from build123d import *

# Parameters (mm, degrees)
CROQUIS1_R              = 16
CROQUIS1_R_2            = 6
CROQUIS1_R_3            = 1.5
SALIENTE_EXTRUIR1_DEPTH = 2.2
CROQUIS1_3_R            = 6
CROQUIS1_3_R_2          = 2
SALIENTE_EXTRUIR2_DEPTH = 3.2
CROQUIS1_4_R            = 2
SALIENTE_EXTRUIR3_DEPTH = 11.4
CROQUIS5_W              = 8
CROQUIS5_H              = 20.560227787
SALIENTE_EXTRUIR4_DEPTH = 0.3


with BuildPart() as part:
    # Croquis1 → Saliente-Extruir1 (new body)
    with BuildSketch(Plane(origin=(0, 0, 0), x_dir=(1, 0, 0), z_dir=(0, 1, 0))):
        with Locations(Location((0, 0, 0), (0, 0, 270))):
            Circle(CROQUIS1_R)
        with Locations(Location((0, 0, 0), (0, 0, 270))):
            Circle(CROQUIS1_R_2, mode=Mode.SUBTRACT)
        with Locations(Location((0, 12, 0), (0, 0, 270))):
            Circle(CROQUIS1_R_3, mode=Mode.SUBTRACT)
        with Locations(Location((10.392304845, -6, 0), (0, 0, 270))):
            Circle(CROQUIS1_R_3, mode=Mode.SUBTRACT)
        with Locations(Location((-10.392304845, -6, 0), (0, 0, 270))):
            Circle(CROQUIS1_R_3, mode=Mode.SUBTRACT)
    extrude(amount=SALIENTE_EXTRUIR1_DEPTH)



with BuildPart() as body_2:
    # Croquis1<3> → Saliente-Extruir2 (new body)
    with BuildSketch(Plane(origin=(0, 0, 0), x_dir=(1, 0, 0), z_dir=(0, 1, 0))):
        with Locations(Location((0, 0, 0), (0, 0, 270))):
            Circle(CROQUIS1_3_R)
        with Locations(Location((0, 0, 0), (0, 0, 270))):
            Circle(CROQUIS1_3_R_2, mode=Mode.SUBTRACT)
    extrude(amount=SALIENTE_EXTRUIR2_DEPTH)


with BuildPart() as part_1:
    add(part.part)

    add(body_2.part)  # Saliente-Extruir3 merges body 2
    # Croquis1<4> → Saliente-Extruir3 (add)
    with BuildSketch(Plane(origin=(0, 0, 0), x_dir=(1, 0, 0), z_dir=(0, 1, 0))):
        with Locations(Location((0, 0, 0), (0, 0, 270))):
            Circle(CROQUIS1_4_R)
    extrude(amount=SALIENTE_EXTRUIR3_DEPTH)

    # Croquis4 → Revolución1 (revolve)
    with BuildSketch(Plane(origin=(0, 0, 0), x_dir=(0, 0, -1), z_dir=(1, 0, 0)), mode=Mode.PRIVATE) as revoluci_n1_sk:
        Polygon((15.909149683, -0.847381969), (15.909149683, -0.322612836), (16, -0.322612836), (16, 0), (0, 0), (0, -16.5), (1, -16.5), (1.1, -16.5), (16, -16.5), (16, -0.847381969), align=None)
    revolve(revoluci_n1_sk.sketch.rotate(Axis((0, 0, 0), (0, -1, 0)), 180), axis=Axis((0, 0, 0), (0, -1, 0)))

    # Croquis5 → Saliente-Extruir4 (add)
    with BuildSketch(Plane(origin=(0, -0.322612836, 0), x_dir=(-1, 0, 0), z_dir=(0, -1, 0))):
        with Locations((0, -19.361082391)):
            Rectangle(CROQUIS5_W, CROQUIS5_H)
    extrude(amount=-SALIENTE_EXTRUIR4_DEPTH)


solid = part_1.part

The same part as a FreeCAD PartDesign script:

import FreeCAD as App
import Part
import Sketcher
from FreeCAD import Vector


def add_polygon(sketch, points):
    """Adds a closed chain of lines whose ends are joined by coincident constraints."""
    first, n = sketch.GeometryCount, len(points)
    for a, b in zip(points, points[1:] + points[:1]):
        sketch.addGeometry(Part.LineSegment(App.Vector(*a, 0), App.Vector(*b, 0)), False)
    for i in range(n):
        sketch.addConstraint(Sketcher.Constraint("Coincident", first + i, 2, first + (i + 1) % n, 1))

doc = App.newDocument("Part")
body = doc.addObject("PartDesign::Body", "Body")

sketch1 = body.newObject("Sketcher::SketchObject", "Sketch")
sketch1.AttachmentSupport = (doc.getObject("XZ_Plane"), [""])
sketch1.MapMode = "FlatFace"
sketch1.addGeometry([
    Part.Circle(Vector(0, 0, 0), Vector(0, 0, 1), 16),
    Part.Circle(Vector(0, -12, 0), Vector(0, 0, 1), 1.5),
    Part.Circle(Vector(-10.4, 6, 0), Vector(0, 0, 1), 1.5),
    Part.Circle(Vector(0, 0, 0), Vector(0, 0, 1), 6),
    Part.Circle(Vector(10.4, 6, 0), Vector(0, 0, 1), 1.5),
], False)
sketch1.addConstraint([
    Sketcher.Constraint("Coincident", 0, 3, -1, 1),
    Sketcher.Constraint("Coincident", 3, 3, -1, 1),
    Sketcher.Constraint("Equal", 1, 2),
    Sketcher.Constraint("Equal", 2, 4),
    Sketcher.Constraint("Symmetric", 2, 3, 4, 3, -2),
    Sketcher.Constraint("PointOnObject", 1, 3, -2),
    Sketcher.Constraint("Diameter", 0, 32.0),
    Sketcher.Constraint("Diameter", 1, 3.0),
    Sketcher.Constraint("Diameter", 3, 12.0),
    Sketcher.Constraint("DistanceY", 1, 3, -1, 1, 12.0),
    Sketcher.Constraint("DistanceY", -1, 1, 2, 3, 6.0),
    Sketcher.Constraint("DistanceX", 2, 3, 4, 3, 20.78461),
])
pad1 = body.newObject("PartDesign::Pad", "Pad")
pad1.Profile = sketch1
pad1.Length = 2.2
pad1.Reversed = True
body2 = doc.addObject("PartDesign::Body", "Body001")

sketch2 = body2.newObject("Sketcher::SketchObject", "Sketch001")
sketch2.AttachmentSupport = (doc.getObject("XZ_Plane001"), [""])
sketch2.MapMode = "FlatFace"
sketch2.addGeometry([
    Part.Circle(Vector(0, 0, 0), Vector(0, 0, 1), 6),
    Part.Circle(Vector(0, 0, 0), Vector(0, 0, 1), 2),
], False)
sketch2.addConstraint([
    Sketcher.Constraint("Coincident", 0, 3, -1, 1),
    Sketcher.Constraint("Coincident", 1, 3, -1, 1),
    Sketcher.Constraint("Diameter", 0, 12.0),
    Sketcher.Constraint("Diameter", 1, 4.0),
])
pad2 = body2.newObject("PartDesign::Pad", "Pad001")
pad2.Profile = sketch2
pad2.Length = 3.2
pad2.Reversed = True
doc.recompute()

boolean = body.newObject("PartDesign::Boolean", "Boolean")
boolean.Type = "Fuse"
boolean.addObjects([body2])

sketch3 = body.newObject("Sketcher::SketchObject", "Sketch002")
sketch3.AttachmentSupport = (doc.getObject("XZ_Plane"), [""])
sketch3.MapMode = "FlatFace"
sketch3.addGeometry(Part.Circle(Vector(0, 0, 0), Vector(0, 0, 1), 2), False)
sketch3.addConstraint([
    Sketcher.Constraint("Coincident", 0, 3, -1, 1),
    Sketcher.Constraint("Diameter", 0, 4.0),
])
pad3 = body.newObject("PartDesign::Pad", "Pad002")
pad3.Profile = sketch3
pad3.Length = 11.4
pad3.Reversed = True

sketch4 = body.newObject("Sketcher::SketchObject", "Sketch003")
sketch4.AttachmentSupport = (doc.getObject("YZ_Plane"), [""])
sketch4.MapMode = "FlatFace"
add_polygon(sketch4, [(-0.85, -15.91), (-0.32, -15.91), (-0.32, -16), (0, -16), (0, 0), (-16.5, 0), (-16.5, -16), (-0.85, -16)])
sketch4.addConstraint([
    Sketcher.Constraint("Horizontal", 0),
    Sketcher.Constraint("Vertical", 1),
    Sketcher.Constraint("Horizontal", 2),
    Sketcher.Constraint("Vertical", 3),
    Sketcher.Constraint("Horizontal", 4),
    Sketcher.Constraint("Vertical", 5),
    Sketcher.Constraint("Horizontal", 6),
    Sketcher.Constraint("Vertical", 7),
    Sketcher.Constraint("Coincident", 3, 2, -1, 1),
    Sketcher.Constraint("Horizontal", 2, 2, 5, 2),
    Sketcher.Constraint("DistanceY", 3, 1, 3, 2, 16.0),
    Sketcher.Constraint("DistanceX", 4, 2, 4, 1, 16.5),
    Sketcher.Constraint("DistanceX", 0, 1, 0, 2, 0.524769),
    Sketcher.Constraint("DistanceX", 6, 1, 6, 2, 15.652618),
    Sketcher.Constraint("DistanceY", 1, 2, 1, 1, 0.09085),
])
revolution = body.newObject("PartDesign::Revolution", "Revolution")
revolution.Profile = sketch4
revolution.ReferenceAxis = (sketch4, ["H_Axis"])
revolution.Angle = 360

sketch5 = body.newObject("Sketcher::SketchObject", "Sketch004")
sketch5.AttachmentSupport = (doc.getObject("XZ_Plane"), [""])
sketch5.MapMode = "FlatFace"
sketch5.AttachmentOffset = App.Placement(Vector(0, 0, 0.322613), App.Rotation())
add_polygon(sketch5, [(4, 9), (4, 30), (-4, 30), (-4, 9)])
sketch5.addConstraint([
    Sketcher.Constraint("Vertical", 0),
    Sketcher.Constraint("Horizontal", 1),
    Sketcher.Constraint("Vertical", 2),
    Sketcher.Constraint("Horizontal", 3),
    Sketcher.Constraint("DistanceX", 1, 2, 1, 1, 8.0),
    Sketcher.Constraint("DistanceX", -1, 1, 0, 2, 4.0),
    Sketcher.Constraint("DistanceY", 0, 1, 0, 2, 20.560228),
    Sketcher.Constraint("DistanceY", -1, 1, 2, 2, 9.080968),
])
pad4 = body.newObject("PartDesign::Pad", "Pad003")
pad4.Profile = sketch5
pad4.Length = 0.3
pad4.Reversed = True

doc.recompute()
